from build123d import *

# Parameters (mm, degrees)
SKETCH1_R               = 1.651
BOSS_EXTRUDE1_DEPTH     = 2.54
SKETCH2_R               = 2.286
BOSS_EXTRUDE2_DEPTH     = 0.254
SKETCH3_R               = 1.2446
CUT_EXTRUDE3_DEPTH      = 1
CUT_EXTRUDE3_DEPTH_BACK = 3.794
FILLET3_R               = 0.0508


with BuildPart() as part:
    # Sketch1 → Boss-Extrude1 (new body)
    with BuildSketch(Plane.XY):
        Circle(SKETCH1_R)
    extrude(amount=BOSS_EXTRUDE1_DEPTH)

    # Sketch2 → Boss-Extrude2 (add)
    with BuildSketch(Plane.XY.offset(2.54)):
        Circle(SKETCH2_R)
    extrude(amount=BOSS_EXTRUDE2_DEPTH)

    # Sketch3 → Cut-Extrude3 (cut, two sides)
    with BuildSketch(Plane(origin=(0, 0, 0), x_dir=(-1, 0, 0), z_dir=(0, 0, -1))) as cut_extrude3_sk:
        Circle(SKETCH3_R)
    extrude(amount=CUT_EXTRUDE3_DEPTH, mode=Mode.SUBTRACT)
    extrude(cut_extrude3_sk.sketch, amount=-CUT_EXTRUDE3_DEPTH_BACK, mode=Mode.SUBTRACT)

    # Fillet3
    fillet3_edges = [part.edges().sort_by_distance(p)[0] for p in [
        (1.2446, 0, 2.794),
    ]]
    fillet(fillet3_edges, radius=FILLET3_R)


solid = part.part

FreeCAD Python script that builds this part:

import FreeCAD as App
import Part
import Sketcher

V = App.Vector
Q = App.Units.Quantity


def edges_at(feature, points):
    """Names of the edges that pass closest to the given points."""
    edges = feature.Shape.Edges
    near = lambda p: min(range(len(edges)), key=lambda i: edges[i].distToShape(Part.Vertex(*p))[0])
    return sorted({f"Edge{near(p) + 1}" for p in points})

doc = App.newDocument("Part")
body = doc.addObject("PartDesign::Body", "Body")

# Sketch on XY plane
sketch1 = doc.addObject("Sketcher::SketchObject", "Sketch")
body.addObject(sketch1)
sketch1.AttachmentSupport = (doc.XY_Plane, [""])
sketch1.MapMode = "FlatFace"
sketch1.addGeometry(Part.Circle(V(0, 0, 0), V(0, 0, 1), 1.7), False)
sketch1.addConstraint([
    Sketcher.Constraint("Coincident", 0, 3, -1, 1),
    Sketcher.Constraint("Diameter", 0, Q("0.13 in")),
])
pad1 = doc.addObject("PartDesign::Pad", "Pad")
body.addObject(pad1)
pad1.Profile = sketch1
pad1.Length = Q("0.1 in")

# Sketch on XY plane
sketch2 = doc.addObject("Sketcher::SketchObject", "Sketch001")
body.addObject(sketch2)
sketch2.AttachmentSupport = (doc.XY_Plane, [""])
sketch2.MapMode = "FlatFace"
sketch2.AttachmentOffset = App.Placement(V(0, 0, 0.1 * 25.4), App.Rotation())
sketch2.addGeometry(Part.Circle(V(0, 0, 0), V(0, 0, 1), 2.3), False)
sketch2.addConstraint([
    Sketcher.Constraint("Coincident", 0, 3, -1, 1),
    Sketcher.Constraint("Diameter", 0, Q("0.18 in")),
])
pad2 = doc.addObject("PartDesign::Pad", "Pad001")
body.addObject(pad2)
pad2.Profile = sketch2
pad2.Length = Q("0.01 in")

# Sketch on XY plane
sketch3 = doc.addObject("Sketcher::SketchObject", "Sketch002")
body.addObject(sketch3)
sketch3.AttachmentSupport = (doc.XY_Plane, [""])
sketch3.MapMode = "FlatFace"
sketch3.addGeometry(Part.Circle(V(0, 0, 0), V(0, 0, 1), 1.2), False)
sketch3.addConstraint([
    Sketcher.Constraint("Coincident", 0, 3, -1, 1),
    Sketcher.Constraint("Diameter", 0, Q("0.098 in")),
])
pocket1 = doc.addObject("PartDesign::Pocket", "Pocket")
body.addObject(pocket1)
pocket1.Profile = sketch3
pocket1.Type = "ThroughAll"
pocket1.Midplane = True
doc.recompute()

fillet = doc.addObject("PartDesign::Fillet", "Fillet")
body.addObject(fillet)
fillet.Base = (pocket1, edges_at(pocket1, [(1.245, 0, 2.794)]))
fillet.Radius = Q("0.002 in")

doc.recompute()
